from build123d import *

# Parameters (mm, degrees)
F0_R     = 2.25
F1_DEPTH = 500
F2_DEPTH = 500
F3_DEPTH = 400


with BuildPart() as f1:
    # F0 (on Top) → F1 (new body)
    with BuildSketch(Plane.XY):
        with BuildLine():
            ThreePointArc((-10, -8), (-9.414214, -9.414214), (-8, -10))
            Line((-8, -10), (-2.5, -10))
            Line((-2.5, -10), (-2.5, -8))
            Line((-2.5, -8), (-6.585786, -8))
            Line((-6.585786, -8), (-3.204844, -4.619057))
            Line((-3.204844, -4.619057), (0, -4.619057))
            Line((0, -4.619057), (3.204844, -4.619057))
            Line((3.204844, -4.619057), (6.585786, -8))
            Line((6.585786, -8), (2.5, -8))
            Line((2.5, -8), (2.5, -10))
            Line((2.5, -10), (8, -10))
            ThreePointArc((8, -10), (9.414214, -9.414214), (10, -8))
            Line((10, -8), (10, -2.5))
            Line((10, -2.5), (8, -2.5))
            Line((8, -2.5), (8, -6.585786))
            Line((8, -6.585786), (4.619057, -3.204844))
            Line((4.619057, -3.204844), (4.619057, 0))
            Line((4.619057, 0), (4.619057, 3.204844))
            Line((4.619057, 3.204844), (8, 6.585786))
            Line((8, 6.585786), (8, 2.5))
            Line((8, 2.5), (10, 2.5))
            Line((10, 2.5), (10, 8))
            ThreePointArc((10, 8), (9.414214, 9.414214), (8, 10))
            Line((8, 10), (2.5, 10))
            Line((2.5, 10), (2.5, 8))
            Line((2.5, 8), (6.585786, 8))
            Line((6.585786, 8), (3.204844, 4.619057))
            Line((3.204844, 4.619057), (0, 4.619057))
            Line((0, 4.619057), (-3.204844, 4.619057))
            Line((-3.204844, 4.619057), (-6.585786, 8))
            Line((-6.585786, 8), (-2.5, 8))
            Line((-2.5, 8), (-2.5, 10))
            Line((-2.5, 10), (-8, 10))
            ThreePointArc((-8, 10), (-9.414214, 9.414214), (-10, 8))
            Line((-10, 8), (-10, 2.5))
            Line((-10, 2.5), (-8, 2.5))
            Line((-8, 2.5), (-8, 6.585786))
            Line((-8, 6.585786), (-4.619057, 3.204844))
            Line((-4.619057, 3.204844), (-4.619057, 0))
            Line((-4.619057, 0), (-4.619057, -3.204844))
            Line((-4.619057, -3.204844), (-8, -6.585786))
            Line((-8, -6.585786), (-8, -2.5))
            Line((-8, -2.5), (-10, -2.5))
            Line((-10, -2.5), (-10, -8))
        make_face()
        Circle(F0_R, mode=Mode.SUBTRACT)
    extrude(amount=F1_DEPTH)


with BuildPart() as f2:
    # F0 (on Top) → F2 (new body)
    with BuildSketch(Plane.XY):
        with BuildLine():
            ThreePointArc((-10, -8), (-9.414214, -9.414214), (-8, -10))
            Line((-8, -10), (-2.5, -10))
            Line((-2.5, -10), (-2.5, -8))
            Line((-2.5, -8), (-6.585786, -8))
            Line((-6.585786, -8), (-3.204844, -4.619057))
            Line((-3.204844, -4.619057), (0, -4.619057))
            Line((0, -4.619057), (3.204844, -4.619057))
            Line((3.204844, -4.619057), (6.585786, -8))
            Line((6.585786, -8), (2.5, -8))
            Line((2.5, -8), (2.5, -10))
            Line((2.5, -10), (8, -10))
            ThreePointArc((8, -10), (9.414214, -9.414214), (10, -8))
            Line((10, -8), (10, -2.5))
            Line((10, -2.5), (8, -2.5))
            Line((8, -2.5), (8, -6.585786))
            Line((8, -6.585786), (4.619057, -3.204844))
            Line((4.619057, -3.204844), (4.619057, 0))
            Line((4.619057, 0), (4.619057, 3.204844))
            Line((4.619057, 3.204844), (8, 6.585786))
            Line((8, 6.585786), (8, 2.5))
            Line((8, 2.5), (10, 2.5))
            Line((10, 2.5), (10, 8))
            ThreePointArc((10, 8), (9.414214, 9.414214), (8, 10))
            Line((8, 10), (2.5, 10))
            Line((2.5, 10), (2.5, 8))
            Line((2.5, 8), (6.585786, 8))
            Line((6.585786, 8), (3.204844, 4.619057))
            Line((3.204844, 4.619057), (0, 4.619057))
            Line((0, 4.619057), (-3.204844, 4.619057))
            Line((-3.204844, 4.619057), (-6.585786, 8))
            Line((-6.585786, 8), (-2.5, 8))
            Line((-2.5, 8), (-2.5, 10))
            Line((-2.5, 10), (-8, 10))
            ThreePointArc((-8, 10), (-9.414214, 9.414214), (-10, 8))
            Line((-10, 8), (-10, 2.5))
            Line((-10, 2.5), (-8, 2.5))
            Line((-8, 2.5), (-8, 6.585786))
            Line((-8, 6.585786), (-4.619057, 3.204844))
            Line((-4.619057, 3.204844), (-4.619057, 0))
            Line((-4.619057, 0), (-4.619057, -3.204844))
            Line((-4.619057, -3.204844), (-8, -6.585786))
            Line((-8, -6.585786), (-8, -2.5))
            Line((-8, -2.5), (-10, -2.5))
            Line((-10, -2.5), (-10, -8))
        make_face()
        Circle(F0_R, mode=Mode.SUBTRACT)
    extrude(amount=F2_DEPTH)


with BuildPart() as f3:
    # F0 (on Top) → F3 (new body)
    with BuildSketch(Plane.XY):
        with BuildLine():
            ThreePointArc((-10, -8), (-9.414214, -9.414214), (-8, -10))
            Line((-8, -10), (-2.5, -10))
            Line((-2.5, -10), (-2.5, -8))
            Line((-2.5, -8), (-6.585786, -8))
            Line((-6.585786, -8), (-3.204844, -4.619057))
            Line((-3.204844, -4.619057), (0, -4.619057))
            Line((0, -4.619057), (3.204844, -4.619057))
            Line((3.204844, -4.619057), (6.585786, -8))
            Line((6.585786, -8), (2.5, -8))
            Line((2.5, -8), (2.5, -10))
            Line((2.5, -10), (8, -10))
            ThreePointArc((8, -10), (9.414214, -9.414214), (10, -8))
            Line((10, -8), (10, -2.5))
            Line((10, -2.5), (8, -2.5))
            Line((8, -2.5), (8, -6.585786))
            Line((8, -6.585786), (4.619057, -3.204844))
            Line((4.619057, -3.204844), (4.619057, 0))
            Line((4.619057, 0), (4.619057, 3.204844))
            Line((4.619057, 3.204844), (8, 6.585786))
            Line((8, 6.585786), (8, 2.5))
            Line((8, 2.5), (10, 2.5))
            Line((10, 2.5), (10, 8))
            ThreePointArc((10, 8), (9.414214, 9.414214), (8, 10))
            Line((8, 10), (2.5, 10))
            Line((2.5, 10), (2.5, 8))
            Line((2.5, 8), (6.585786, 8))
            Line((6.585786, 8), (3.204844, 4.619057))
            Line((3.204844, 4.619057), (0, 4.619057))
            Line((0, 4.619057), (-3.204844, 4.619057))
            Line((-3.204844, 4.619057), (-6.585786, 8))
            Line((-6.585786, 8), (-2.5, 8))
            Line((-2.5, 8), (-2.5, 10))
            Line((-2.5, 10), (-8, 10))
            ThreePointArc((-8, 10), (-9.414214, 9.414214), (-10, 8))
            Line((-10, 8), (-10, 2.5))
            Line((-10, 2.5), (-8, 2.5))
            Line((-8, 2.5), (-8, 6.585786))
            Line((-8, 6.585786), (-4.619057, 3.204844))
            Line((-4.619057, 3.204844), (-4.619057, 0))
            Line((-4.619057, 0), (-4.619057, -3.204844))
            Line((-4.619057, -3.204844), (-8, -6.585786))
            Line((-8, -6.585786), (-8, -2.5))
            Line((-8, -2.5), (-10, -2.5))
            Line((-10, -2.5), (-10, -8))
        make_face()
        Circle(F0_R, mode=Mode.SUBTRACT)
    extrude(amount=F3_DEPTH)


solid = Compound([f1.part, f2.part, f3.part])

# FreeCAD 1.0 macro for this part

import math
import FreeCAD as App
import Part
import Sketcher
from FreeCAD import Vector

doc = App.newDocument("Part")
params = doc.addObject("Spreadsheet::Sheet", "Params")
for row, (alias, value) in enumerate([
    ("sketch1_radius", "1.999999 mm"),
    ("sketch1_diameter", "4.5 mm"),
    ("sketch1_width", "5.5 mm"),
    ("pad1_length", "500 mm"),
    ("sketch2_radius", "1.999999 mm"),
    ("sketch2_diameter", "4.5 mm"),
    ("sketch2_width", "5.5 mm"),
    ("pad2_length", "500 mm"),
    ("sketch3_radius", "1.999999 mm"),
    ("sketch3_diameter", "4.5 mm"),
    ("sketch3_width", "5.5 mm"),
    ("pad3_length", "400 mm"),
], start=1):
    params.set(f"A{row}", alias)
    params.set(f"B{row}", "=" + value)
    params.setAlias(f"B{row}", alias)

body = doc.addObject("PartDesign::Body", "Body")

sketch1 = body.newObject("Sketcher::SketchObject", "Sketch")
sketch1.AttachmentSupport = (doc.getObject("XY_Plane"), [""])
sketch1.MapMode = "FlatFace"
sketch1.addGeometry([
    Part.ArcOfCircle(Part.Circle(Vector(-8, -8, 0), Vector(0, 0, 1), 2), math.radians(180), math.radians(270)),
    Part.LineSegment(Vector(-8, -10, 0), Vector(-2.5, -10, 0)),
    Part.LineSegment(Vector(-2.5, -10, 0), Vector(-2.5, -8, 0)),
    Part.LineSegment(Vector(-2.5, -8, 0), Vector(-6.6, -8, 0)),
    Part.LineSegment(Vector(-6.6, -8, 0), Vector(-3.2, -4.6, 0)),
    Part.LineSegment(Vector(-3.2, -4.6, 0), Vector(3.2, -4.6, 0)),
    Part.LineSegment(Vector(3.2, -4.6, 0), Vector(6.6, -8, 0)),
    Part.LineSegment(Vector(6.6, -8, 0), Vector(2.5, -8, 0)),
    Part.LineSegment(Vector(2.5, -8, 0), Vector(2.5, -10, 0)),
    Part.LineSegment(Vector(2.5, -10, 0), Vector(8, -10, 0)),
    Part.ArcOfCircle(Part.Circle(Vector(8, -8, 0), Vector(0, 0, 1), 2), math.radians(-90), math.radians(0)),
    Part.LineSegment(Vector(10, -8, 0), Vector(10, -2.5, 0)),
    Part.LineSegment(Vector(10, -2.5, 0), Vector(8, -2.5, 0)),
    Part.LineSegment(Vector(8, -2.5, 0), Vector(8, -6.6, 0)),
    Part.LineSegment(Vector(8, -6.6, 0), Vector(4.6, -3.2, 0)),
    Part.LineSegment(Vector(4.6, -3.2, 0), Vector(4.6, 3.2, 0)),
    Part.LineSegment(Vector(4.6, 3.2, 0), Vector(8, 6.6, 0)),
    Part.LineSegment(Vector(8, 6.6, 0), Vector(8, 2.5, 0)),
    Part.LineSegment(Vector(8, 2.5, 0), Vector(10, 2.5, 0)),
    Part.LineSegment(Vector(10, 2.5, 0), Vector(10, 8, 0)),
    Part.ArcOfCircle(Part.Circle(Vector(8, 8, 0), Vector(0, 0, 1), 2), math.radians(0), math.radians(90)),
    Part.LineSegment(Vector(8, 10, 0), Vector(2.5, 10, 0)),
    Part.LineSegment(Vector(2.5, 10, 0), Vector(2.5, 8, 0)),
    Part.LineSegment(Vector(2.5, 8, 0), Vector(6.6, 8, 0)),
    Part.LineSegment(Vector(6.6, 8, 0), Vector(3.2, 4.6, 0)),
    Part.LineSegment(Vector(3.2, 4.6, 0), Vector(-3.2, 4.6, 0)),
    Part.LineSegment(Vector(-3.2, 4.6, 0), Vector(-6.6, 8, 0)),
    Part.LineSegment(Vector(-6.6, 8, 0), Vector(-2.5, 8, 0)),
    Part.LineSegment(Vector(-2.5, 8, 0), Vector(-2.5, 10, 0)),
    Part.LineSegment(Vector(-2.5, 10, 0), Vector(-8, 10, 0)),
    Part.ArcOfCircle(Part.Circle(Vector(-8, 8, 0), Vector(0, 0, 1), 2), math.radians(90), math.radians(180)),
    Part.LineSegment(Vector(-10, 8, 0), Vector(-10, 2.5, 0)),
    Part.LineSegment(Vector(-10, 2.5, 0), Vector(-8, 2.5, 0)),
    Part.LineSegment(Vector(-8, 2.5, 0), Vector(-8, 6.6, 0)),
    Part.LineSegment(Vector(-8, 6.6, 0), Vector(-4.6, 3.2, 0)),
    Part.LineSegment(Vector(-4.6, 3.2, 0), Vector(-4.6, -3.2, 0)),
    Part.LineSegment(Vector(-4.6, -3.2, 0), Vector(-8, -6.6, 0)),
    Part.LineSegment(Vector(-8, -6.6, 0), Vector(-8, -2.5, 0)),
    Part.LineSegment(Vector(-8, -2.5, 0), Vector(-10, -2.5, 0)),
    Part.LineSegment(Vector(-10, -2.5, 0), Vector(-10, -8, 0)),
    Part.Circle(Vector(0, 0, 0), Vector(0, 0, 1), 2.2),
], False)
sketch1.addConstraint([
    Sketcher.Constraint("Tangent", 0, 2, 1, 1),
    Sketcher.Constraint("Coincident", 1, 2, 2, 1),
    Sketcher.Constraint("Coincident", 2, 2, 3, 1),
    Sketcher.Constraint("Coincident", 3, 2, 4, 1),
    Sketcher.Constraint("Coincident", 4, 2, 5, 1),
    Sketcher.Constraint("Coincident", 5, 2, 6, 1),
    Sketcher.Constraint("Coincident", 6, 2, 7, 1),
    Sketcher.Constraint("Coincident", 7, 2, 8, 1),
    Sketcher.Constraint("Coincident", 8, 2, 9, 1),
    Sketcher.Constraint("Tangent", 9, 2, 10, 1),
    Sketcher.Constraint("Tangent", 10, 2, 11, 1),
    Sketcher.Constraint("Coincident", 11, 2, 12, 1),
    Sketcher.Constraint("Coincident", 12, 2, 13, 1),
    Sketcher.Constraint("Coincident", 13, 2, 14, 1),
    Sketcher.Constraint("Coincident", 14, 2, 15, 1),
    Sketcher.Constraint("Coincident", 15, 2, 16, 1),
    Sketcher.Constraint("Coincident", 16, 2, 17, 1),
    Sketcher.Constraint("Coincident", 17, 2, 18, 1),
    Sketcher.Constraint("Coincident", 18, 2, 19, 1),
    Sketcher.Constraint("Tangent", 19, 2, 20, 1),
    Sketcher.Constraint("Tangent", 20, 2, 21, 1),
    Sketcher.Constraint("Coincident", 21, 2, 22, 1),
    Sketcher.Constraint("Coincident", 22, 2, 23, 1),
    Sketcher.Constraint("Coincident", 23, 2, 24, 1),
    Sketcher.Constraint("Coincident", 24, 2, 25, 1),
    Sketcher.Constraint("Coincident", 25, 2, 26, 1),
    Sketcher.Constraint("Coincident", 26, 2, 27, 1),
    Sketcher.Constraint("Coincident", 27, 2, 28, 1),
    Sketcher.Constraint("Coincident", 28, 2, 29, 1),
    Sketcher.Constraint("Tangent", 29, 2, 30, 1),
    Sketcher.Constraint("Tangent", 30, 2, 31, 1),
    Sketcher.Constraint("Coincident", 31, 2, 32, 1),
    Sketcher.Constraint("Coincident", 32, 2, 33, 1),
    Sketcher.Constraint("Coincident", 33, 2, 34, 1),
    Sketcher.Constraint("Coincident", 34, 2, 35, 1),
    Sketcher.Constraint("Coincident", 35, 2, 36, 1),
    Sketcher.Constraint("Coincident", 36, 2, 37, 1),
    Sketcher.Constraint("Coincident", 37, 2, 38, 1),
    Sketcher.Constraint("Coincident", 38, 2, 39, 1),
    Sketcher.Constraint("Tangent", 39, 2, 0, 1),
    Sketcher.Constraint("Horizontal", 1),
    Sketcher.Constraint("Vertical", 2),
    Sketcher.Constraint("Horizontal", 3),
    Sketcher.Constraint("Horizontal", 5),
    Sketcher.Constraint("Horizontal", 7),
    Sketcher.Constraint("Vertical", 8),
    Sketcher.Constraint("Horizontal", 9),
    Sketcher.Constraint("Vertical", 11),
    Sketcher.Constraint("Horizontal", 12),
    Sketcher.Constraint("Vertical", 13),
    Sketcher.Constraint("Vertical", 15),
    Sketcher.Constraint("Vertical", 17),
    Sketcher.Constraint("Horizontal", 18),
    Sketcher.Constraint("Vertical", 19),
    Sketcher.Constraint("Horizontal", 21),
    Sketcher.Constraint("Vertical", 22),
    Sketcher.Constraint("Horizontal", 23),
    Sketcher.Constraint("Horizontal", 25),
    Sketcher.Constraint("Horizontal", 27),
    Sketcher.Constraint("Vertical", 28),
    Sketcher.Constraint("Horizontal", 29),
    Sketcher.Constraint("Vertical", 31),
    Sketcher.Constraint("Horizontal", 32),
    Sketcher.Constraint("Vertical", 33),
    Sketcher.Constraint("Vertical", 35),
    Sketcher.Constraint("Vertical", 37),
    Sketcher.Constraint("Horizontal", 38),
    Sketcher.Constraint("Vertical", 39),
    Sketcher.Constraint("Coincident", 40, 3, -1, 1),
    Sketcher.Constraint("Equal", 0, 10),
    Sketcher.Constraint("Equal", 10, 20),
    Sketcher.Constraint("Equal", 20, 30),
    Sketcher.Constraint("Symmetric", 0, 3, 20, 3, -1, 1),
    Sketcher.Constraint("Symmetric", 10, 3, 30, 3, -1, 1),
    Sketcher.Constraint("Symmetric", 2, 2, 22, 2, -1, 1),
    Sketcher.Constraint("Symmetric", 4, 2, 24, 2, -1, 1),
    Sketcher.Constraint("Symmetric", 6, 2, 26, 2, -1, 1),
    Sketcher.Constraint("Symmetric", 12, 2, 32, 2, -1, 1),
    Sketcher.Constraint("Symmetric", 14, 2, 34, 2, -1, 1),
    Sketcher.Constraint("Symmetric", 16, 2, 36, 2, -1, 1),
    Sketcher.Constraint("Symmetric", 0, 3, 10, 3, -2),
    Sketcher.Constraint("Symmetric", 3, 2, 6, 2, -2),
    Sketcher.Constraint("Symmetric", 17, 2, 32, 2, -2),
    Sketcher.Constraint("Perpendicular", 4, 6),
    Sketcher.Constraint("Parallel", 6, 14),
    Sketcher.Constraint("Perpendicular", 14, 16),
    Sketcher.Constraint("Parallel", 16, 24),
    Sketcher.Constraint("Perpendicular", 24, 26),
    Sketcher.Constraint("Parallel", 26, 34),
    Sketcher.Constraint("Perpendicular", 34, 36),
    Sketcher.Constraint("Horizontal", 10, 3, 2, 2),
    Sketcher.Constraint("Horizontal", 16, 2, 33, 2),
    Sketcher.Constraint("Horizontal", 15, 2, 34, 2),
    Sketcher.Constraint("Horizontal", 12, 2, 37, 2),
    Sketcher.Constraint("Vertical", 9, 2, 12, 2),
    Sketcher.Constraint("Vertical", 8, 2, 21, 2),
    Sketcher.Constraint("Vertical", 2, 2, 27, 2),
    Sketcher.Constraint("Equal", 29, 11),
    Sketcher.Constraint("Equal", 27, 13),
    Sketcher.Constraint("Equal", 25, 15),
    Sketcher.Constraint("Equal", 6, 14),
    Sketcher.Constraint("Radius", 0, 1.999999),
    Sketcher.Constraint("Diameter", 40, 4.5),
    Sketcher.Constraint("DistanceX", 1, 1, 1, 2, 5.5),
    Sketcher.Constraint("DistanceX", 0, 3, -1, 1, 8.000001),
    Sketcher.Constraint("DistanceX", 3, 2, 3, 1, 4.085786),
    Sketcher.Constraint("DistanceX", 5, 1, 5, 2, 6.409688),
])
sketch1.setExpression("Constraints[101]", "Params.sketch1_radius")
sketch1.setExpression("Constraints[102]", "Params.sketch1_diameter")
sketch1.setExpression("Constraints[103]", "Params.sketch1_width")
pad1 = body.newObject("PartDesign::Pad", "Pad")
pad1.Profile = sketch1
pad1.setExpression("Length", "Params.pad1_length")
body2 = doc.addObject("PartDesign::Body", "Body001")

sketch2 = body2.newObject("Sketcher::SketchObject", "Sketch001")
sketch2.AttachmentSupport = (doc.getObject("XY_Plane001"), [""])
sketch2.MapMode = "FlatFace"
sketch2.addGeometry([
    Part.ArcOfCircle(Part.Circle(Vector(-8, -8, 0), Vector(0, 0, 1), 2), math.radians(180), math.radians(270)),
    Part.LineSegment(Vector(-8, -10, 0), Vector(-2.5, -10, 0)),
    Part.LineSegment(Vector(-2.5, -10, 0), Vector(-2.5, -8, 0)),
    Part.LineSegment(Vector(-2.5, -8, 0), Vector(-6.6, -8, 0)),
    Part.LineSegment(Vector(-6.6, -8, 0), Vector(-3.2, -4.6, 0)),
    Part.LineSegment(Vector(-3.2, -4.6, 0), Vector(3.2, -4.6, 0)),
    Part.LineSegment(Vector(3.2, -4.6, 0), Vector(6.6, -8, 0)),
    Part.LineSegment(Vector(6.6, -8, 0), Vector(2.5, -8, 0)),
    Part.LineSegment(Vector(2.5, -8, 0), Vector(2.5, -10, 0)),
    Part.LineSegment(Vector(2.5, -10, 0), Vector(8, -10, 0)),
    Part.ArcOfCircle(Part.Circle(Vector(8, -8, 0), Vector(0, 0, 1), 2), math.radians(-90), math.radians(0)),
    Part.LineSegment(Vector(10, -8, 0), Vector(10, -2.5, 0)),
    Part.LineSegment(Vector(10, -2.5, 0), Vector(8, -2.5, 0)),
    Part.LineSegment(Vector(8, -2.5, 0), Vector(8, -6.6, 0)),
    Part.LineSegment(Vector(8, -6.6, 0), Vector(4.6, -3.2, 0)),
    Part.LineSegment(Vector(4.6, -3.2, 0), Vector(4.6, 3.2, 0)),
    Part.LineSegment(Vector(4.6, 3.2, 0), Vector(8, 6.6, 0)),
    Part.LineSegment(Vector(8, 6.6, 0), Vector(8, 2.5, 0)),
    Part.LineSegment(Vector(8, 2.5, 0), Vector(10, 2.5, 0)),
    Part.LineSegment(Vector(10, 2.5, 0), Vector(10, 8, 0)),
    Part.ArcOfCircle(Part.Circle(Vector(8, 8, 0), Vector(0, 0, 1), 2), math.radians(0), math.radians(90)),
    Part.LineSegment(Vector(8, 10, 0), Vector(2.5, 10, 0)),
    Part.LineSegment(Vector(2.5, 10, 0), Vector(2.5, 8, 0)),
    Part.LineSegment(Vector(2.5, 8, 0), Vector(6.6, 8, 0)),
    Part.LineSegment(Vector(6.6, 8, 0), Vector(3.2, 4.6, 0)),
    Part.LineSegment(Vector(3.2, 4.6, 0), Vector(-3.2, 4.6, 0)),
    Part.LineSegment(Vector(-3.2, 4.6, 0), Vector(-6.6, 8, 0)),
    Part.LineSegment(Vector(-6.6, 8, 0), Vector(-2.5, 8, 0)),
    Part.LineSegment(Vector(-2.5, 8, 0), Vector(-2.5, 10, 0)),
    Part.LineSegment(Vector(-2.5, 10, 0), Vector(-8, 10, 0)),
    Part.ArcOfCircle(Part.Circle(Vector(-8, 8, 0), Vector(0, 0, 1), 2), math.radians(90), math.radians(180)),
    Part.LineSegment(Vector(-10, 8, 0), Vector(-10, 2.5, 0)),
    Part.LineSegment(Vector(-10, 2.5, 0), Vector(-8, 2.5, 0)),
    Part.LineSegment(Vector(-8, 2.5, 0), Vector(-8, 6.6, 0)),
    Part.LineSegment(Vector(-8, 6.6, 0), Vector(-4.6, 3.2, 0)),
    Part.LineSegment(Vector(-4.6, 3.2, 0), Vector(-4.6, -3.2, 0)),
    Part.LineSegment(Vector(-4.6, -3.2, 0), Vector(-8, -6.6, 0)),
    Part.LineSegment(Vector(-8, -6.6, 0), Vector(-8, -2.5, 0)),
    Part.LineSegment(Vector(-8, -2.5, 0), Vector(-10, -2.5, 0)),
    Part.LineSegment(Vector(-10, -2.5, 0), Vector(-10, -8, 0)),
    Part.Circle(Vector(0, 0, 0), Vector(0, 0, 1), 2.2),
], False)
sketch2.addConstraint([
    Sketcher.Constraint("Tangent", 0, 2, 1, 1),
    Sketcher.Constraint("Coincident", 1, 2, 2, 1),
    Sketcher.Constraint("Coincident", 2, 2, 3, 1),
    Sketcher.Constraint("Coincident", 3, 2, 4, 1),
    Sketcher.Constraint("Coincident", 4, 2, 5, 1),
    Sketcher.Constraint("Coincident", 5, 2, 6, 1),
    Sketcher.Constraint("Coincident", 6, 2, 7, 1),
    Sketcher.Constraint("Coincident", 7, 2, 8, 1),
    Sketcher.Constraint("Coincident", 8, 2, 9, 1),
    Sketcher.Constraint("Tangent", 9, 2, 10, 1),
    Sketcher.Constraint("Tangent", 10, 2, 11, 1),
    Sketcher.Constraint("Coincident", 11, 2, 12, 1),
    Sketcher.Constraint("Coincident", 12, 2, 13, 1),
    Sketcher.Constraint("Coincident", 13, 2, 14, 1),
    Sketcher.Constraint("Coincident", 14, 2, 15, 1),
    Sketcher.Constraint("Coincident", 15, 2, 16, 1),
    Sketcher.Constraint("Coincident", 16, 2, 17, 1),
    Sketcher.Constraint("Coincident", 17, 2, 18, 1),
    Sketcher.Constraint("Coincident", 18, 2, 19, 1),
    Sketcher.Constraint("Tangent", 19, 2, 20, 1),
    Sketcher.Constraint("Tangent", 20, 2, 21, 1),
    Sketcher.Constraint("Coincident", 21, 2, 22, 1),
    Sketcher.Constraint("Coincident", 22, 2, 23, 1),
    Sketcher.Constraint("Coincident", 23, 2, 24, 1),
    Sketcher.Constraint("Coincident", 24, 2, 25, 1),
    Sketcher.Constraint("Coincident", 25, 2, 26, 1),
    Sketcher.Constraint("Coincident", 26, 2, 27, 1),
    Sketcher.Constraint("Coincident", 27, 2, 28, 1),
    Sketcher.Constraint("Coincident", 28, 2, 29, 1),
    Sketcher.Constraint("Tangent", 29, 2, 30, 1),
    Sketcher.Constraint("Tangent", 30, 2, 31, 1),
    Sketcher.Constraint("Coincident", 31, 2, 32, 1),
    Sketcher.Constraint("Coincident", 32, 2, 33, 1),
    Sketcher.Constraint("Coincident", 33, 2, 34, 1),
    Sketcher.Constraint("Coincident", 34, 2, 35, 1),
    Sketcher.Constraint("Coincident", 35, 2, 36, 1),
    Sketcher.Constraint("Coincident", 36, 2, 37, 1),
    Sketcher.Constraint("Coincident", 37, 2, 38, 1),
    Sketcher.Constraint("Coincident", 38, 2, 39, 1),
    Sketcher.Constraint("Tangent", 39, 2, 0, 1),
    Sketcher.Constraint("Horizontal", 1),
    Sketcher.Constraint("Vertical", 2),
    Sketcher.Constraint("Horizontal", 3),
    Sketcher.Constraint("Horizontal", 5),
    Sketcher.Constraint("Horizontal", 7),
    Sketcher.Constraint("Vertical", 8),
    Sketcher.Constraint("Horizontal", 9),
    Sketcher.Constraint("Vertical", 11),
    Sketcher.Constraint("Horizontal", 12),
    Sketcher.Constraint("Vertical", 13),
    Sketcher.Constraint("Vertical", 15),
    Sketcher.Constraint("Vertical", 17),
    Sketcher.Constraint("Horizontal", 18),
    Sketcher.Constraint("Vertical", 19),
    Sketcher.Constraint("Horizontal", 21),
    Sketcher.Constraint("Vertical", 22),
    Sketcher.Constraint("Horizontal", 23),
    Sketcher.Constraint("Horizontal", 25),
    Sketcher.Constraint("Horizontal", 27),
    Sketcher.Constraint("Vertical", 28),
    Sketcher.Constraint("Horizontal", 29),
    Sketcher.Constraint("Vertical", 31),
    Sketcher.Constraint("Horizontal", 32),
    Sketcher.Constraint("Vertical", 33),
    Sketcher.Constraint("Vertical", 35),
    Sketcher.Constraint("Vertical", 37),
    Sketcher.Constraint("Horizontal", 38),
    Sketcher.Constraint("Vertical", 39),
    Sketcher.Constraint("Coincident", 40, 3, -1, 1),
    Sketcher.Constraint("Equal", 0, 10),
    Sketcher.Constraint("Equal", 10, 20),
    Sketcher.Constraint("Equal", 20, 30),
    Sketcher.Constraint("Symmetric", 0, 3, 20, 3, -1, 1),
    Sketcher.Constraint("Symmetric", 10, 3, 30, 3, -1, 1),
    Sketcher.Constraint("Symmetric", 2, 2, 22, 2, -1, 1),
    Sketcher.Constraint("Symmetric", 4, 2, 24, 2, -1, 1),
    Sketcher.Constraint("Symmetric", 6, 2, 26, 2, -1, 1),
    Sketcher.Constraint("Symmetric", 12, 2, 32, 2, -1, 1),
    Sketcher.Constraint("Symmetric", 14, 2, 34, 2, -1, 1),
    Sketcher.Constraint("Symmetric", 16, 2, 36, 2, -1, 1),
    Sketcher.Constraint("Symmetric", 0, 3, 10, 3, -2),
    Sketcher.Constraint("Symmetric", 3, 2, 6, 2, -2),
    Sketcher.Constraint("Symmetric", 17, 2, 32, 2, -2),
    Sketcher.Constraint("Perpendicular", 4, 6),
    Sketcher.Constraint("Parallel", 6, 14),
    Sketcher.Constraint("Perpendicular", 14, 16),
    Sketcher.Constraint("Parallel", 16, 24),
    Sketcher.Constraint("Perpendicular", 24, 26),
    Sketcher.Constraint("Parallel", 26, 34),
    Sketcher.Constraint("Perpendicular", 34, 36),
    Sketcher.Constraint("Horizontal", 10, 3, 2, 2),
    Sketcher.Constraint("Horizontal", 16, 2, 33, 2),
    Sketcher.Constraint("Horizontal", 15, 2, 34, 2),
    Sketcher.Constraint("Horizontal", 12, 2, 37, 2),
    Sketcher.Constraint("Vertical", 9, 2, 12, 2),
    Sketcher.Constraint("Vertical", 8, 2, 21, 2),
    Sketcher.Constraint("Vertical", 2, 2, 27, 2),
    Sketcher.Constraint("Equal", 29, 11),
    Sketcher.Constraint("Equal", 27, 13),
    Sketcher.Constraint("Equal", 25, 15),
    Sketcher.Constraint("Equal", 6, 14),
    Sketcher.Constraint("Radius", 0, 1.999999),
    Sketcher.Constraint("Diameter", 40, 4.5),
    Sketcher.Constraint("DistanceX", 1, 1, 1, 2, 5.5),
    Sketcher.Constraint("DistanceX", 0, 3, -1, 1, 8.000001),
    Sketcher.Constraint("DistanceX", 3, 2, 3, 1, 4.085786),
    Sketcher.Constraint("DistanceX", 5, 1, 5, 2, 6.409688),
])
sketch2.setExpression("Constraints[101]", "Params.sketch2_radius")
sketch2.setExpression("Constraints[102]", "Params.sketch2_diameter")
sketch2.setExpression("Constraints[103]", "Params.sketch2_width")
pad2 = body2.newObject("PartDesign::Pad", "Pad001")
pad2.Profile = sketch2
pad2.setExpression("Length", "Params.pad2_length")
body3 = doc.addObject("PartDesign::Body", "Body002")

sketch3 = body3.newObject("Sketcher::SketchObject", "Sketch002")
sketch3.AttachmentSupport = (doc.getObject("XY_Plane002"), [""])
sketch3.MapMode = "FlatFace"
sketch3.addGeometry([
    Part.ArcOfCircle(Part.Circle(Vector(-8, -8, 0), Vector(0, 0, 1), 2), math.radians(180), math.radians(270)),
    Part.LineSegment(Vector(-8, -10, 0), Vector(-2.5, -10, 0)),
    Part.LineSegment(Vector(-2.5, -10, 0), Vector(-2.5, -8, 0)),
    Part.LineSegment(Vector(-2.5, -8, 0), Vector(-6.6, -8, 0)),
    Part.LineSegment(Vector(-6.6, -8, 0), Vector(-3.2, -4.6, 0)),
    Part.LineSegment(Vector(-3.2, -4.6, 0), Vector(3.2, -4.6, 0)),
    Part.LineSegment(Vector(3.2, -4.6, 0), Vector(6.6, -8, 0)),
    Part.LineSegment(Vector(6.6, -8, 0), Vector(2.5, -8, 0)),
    Part.LineSegment(Vector(2.5, -8, 0), Vector(2.5, -10, 0)),
    Part.LineSegment(Vector(2.5, -10, 0), Vector(8, -10, 0)),
    Part.ArcOfCircle(Part.Circle(Vector(8, -8, 0), Vector(0, 0, 1), 2), math.radians(-90), math.radians(0)),
    Part.LineSegment(Vector(10, -8, 0), Vector(10, -2.5, 0)),
    Part.LineSegment(Vector(10, -2.5, 0), Vector(8, -2.5, 0)),
    Part.LineSegment(Vector(8, -2.5, 0), Vector(8, -6.6, 0)),
    Part.LineSegment(Vector(8, -6.6, 0), Vector(4.6, -3.2, 0)),
    Part.LineSegment(Vector(4.6, -3.2, 0), Vector(4.6, 3.2, 0)),
    Part.LineSegment(Vector(4.6, 3.2, 0), Vector(8, 6.6, 0)),
    Part.LineSegment(Vector(8, 6.6, 0), Vector(8, 2.5, 0)),
    Part.LineSegment(Vector(8, 2.5, 0), Vector(10, 2.5, 0)),
    Part.LineSegment(Vector(10, 2.5, 0), Vector(10, 8, 0)),
    Part.ArcOfCircle(Part.Circle(Vector(8, 8, 0), Vector(0, 0, 1), 2), math.radians(0), math.radians(90)),
    Part.LineSegment(Vector(8, 10, 0), Vector(2.5, 10, 0)),
    Part.LineSegment(Vector(2.5, 10, 0), Vector(2.5, 8, 0)),
    Part.LineSegment(Vector(2.5, 8, 0), Vector(6.6, 8, 0)),
    Part.LineSegment(Vector(6.6, 8, 0), Vector(3.2, 4.6, 0)),
    Part.LineSegment(Vector(3.2, 4.6, 0), Vector(-3.2, 4.6, 0)),
    Part.LineSegment(Vector(-3.2, 4.6, 0), Vector(-6.6, 8, 0)),
    Part.LineSegment(Vector(-6.6, 8, 0), Vector(-2.5, 8, 0)),
    Part.LineSegment(Vector(-2.5, 8, 0), Vector(-2.5, 10, 0)),
    Part.LineSegment(Vector(-2.5, 10, 0), Vector(-8, 10, 0)),
    Part.ArcOfCircle(Part.Circle(Vector(-8, 8, 0), Vector(0, 0, 1), 2), math.radians(90), math.radians(180)),
    Part.LineSegment(Vector(-10, 8, 0), Vector(-10, 2.5, 0)),
    Part.LineSegment(Vector(-10, 2.5, 0), Vector(-8, 2.5, 0)),
    Part.LineSegment(Vector(-8, 2.5, 0), Vector(-8, 6.6, 0)),
    Part.LineSegment(Vector(-8, 6.6, 0), Vector(-4.6, 3.2, 0)),
    Part.LineSegment(Vector(-4.6, 3.2, 0), Vector(-4.6, -3.2, 0)),
    Part.LineSegment(Vector(-4.6, -3.2, 0), Vector(-8, -6.6, 0)),
    Part.LineSegment(Vector(-8, -6.6, 0), Vector(-8, -2.5, 0)),
    Part.LineSegment(Vector(-8, -2.5, 0), Vector(-10, -2.5, 0)),
    Part.LineSegment(Vector(-10, -2.5, 0), Vector(-10, -8, 0)),
    Part.Circle(Vector(0, 0, 0), Vector(0, 0, 1), 2.2),
], False)
sketch3.addConstraint([
    Sketcher.Constraint("Tangent", 0, 2, 1, 1),
    Sketcher.Constraint("Coincident", 1, 2, 2, 1),
    Sketcher.Constraint("Coincident", 2, 2, 3, 1),
    Sketcher.Constraint("Coincident", 3, 2, 4, 1),
    Sketcher.Constraint("Coincident", 4, 2, 5, 1),
    Sketcher.Constraint("Coincident", 5, 2, 6, 1),
    Sketcher.Constraint("Coincident", 6, 2, 7, 1),
    Sketcher.Constraint("Coincident", 7, 2, 8, 1),
    Sketcher.Constraint("Coincident", 8, 2, 9, 1),
    Sketcher.Constraint("Tangent", 9, 2, 10, 1),
    Sketcher.Constraint("Tangent", 10, 2, 11, 1),
    Sketcher.Constraint("Coincident", 11, 2, 12, 1),
    Sketcher.Constraint("Coincident", 12, 2, 13, 1),
    Sketcher.Constraint("Coincident", 13, 2, 14, 1),
    Sketcher.Constraint("Coincident", 14, 2, 15, 1),
    Sketcher.Constraint("Coincident", 15, 2, 16, 1),
    Sketcher.Constraint("Coincident", 16, 2, 17, 1),
    Sketcher.Constraint("Coincident", 17, 2, 18, 1),
    Sketcher.Constraint("Coincident", 18, 2, 19, 1),
    Sketcher.Constraint("Tangent", 19, 2, 20, 1),
    Sketcher.Constraint("Tangent", 20, 2, 21, 1),
    Sketcher.Constraint("Coincident", 21, 2, 22, 1),
    Sketcher.Constraint("Coincident", 22, 2, 23, 1),
    Sketcher.Constraint("Coincident", 23, 2, 24, 1),
    Sketcher.Constraint("Coincident", 24, 2, 25, 1),
    Sketcher.Constraint("Coincident", 25, 2, 26, 1),
    Sketcher.Constraint("Coincident", 26, 2, 27, 1),
    Sketcher.Constraint("Coincident", 27, 2, 28, 1),
    Sketcher.Constraint("Coincident", 28, 2, 29, 1),
    Sketcher.Constraint("Tangent", 29, 2, 30, 1),
    Sketcher.Constraint("Tangent", 30, 2, 31, 1),
    Sketcher.Constraint("Coincident", 31, 2, 32, 1),
    Sketcher.Constraint("Coincident", 32, 2, 33, 1),
    Sketcher.Constraint("Coincident", 33, 2, 34, 1),
    Sketcher.Constraint("Coincident", 34, 2, 35, 1),
    Sketcher.Constraint("Coincident", 35, 2, 36, 1),
    Sketcher.Constraint("Coincident", 36, 2, 37, 1),
    Sketcher.Constraint("Coincident", 37, 2, 38, 1),
    Sketcher.Constraint("Coincident", 38, 2, 39, 1),
    Sketcher.Constraint("Tangent", 39, 2, 0, 1),
    Sketcher.Constraint("Horizontal", 1),
    Sketcher.Constraint("Vertical", 2),
    Sketcher.Constraint("Horizontal", 3),
    Sketcher.Constraint("Horizontal", 5),
    Sketcher.Constraint("Horizontal", 7),
    Sketcher.Constraint("Vertical", 8),
    Sketcher.Constraint("Horizontal", 9),
    Sketcher.Constraint("Vertical", 11),
    Sketcher.Constraint("Horizontal", 12),
    Sketcher.Constraint("Vertical", 13),
    Sketcher.Constraint("Vertical", 15),
    Sketcher.Constraint("Vertical", 17),
    Sketcher.Constraint("Horizontal", 18),
    Sketcher.Constraint("Vertical", 19),
    Sketcher.Constraint("Horizontal", 21),
    Sketcher.Constraint("Vertical", 22),
    Sketcher.Constraint("Horizontal", 23),
    Sketcher.Constraint("Horizontal", 25),
    Sketcher.Constraint("Horizontal", 27),
    Sketcher.Constraint("Vertical", 28),
    Sketcher.Constraint("Horizontal", 29),
    Sketcher.Constraint("Vertical", 31),
    Sketcher.Constraint("Horizontal", 32),
    Sketcher.Constraint("Vertical", 33),
    Sketcher.Constraint("Vertical", 35),
    Sketcher.Constraint("Vertical", 37),
    Sketcher.Constraint("Horizontal", 38),
    Sketcher.Constraint("Vertical", 39),
    Sketcher.Constraint("Coincident", 40, 3, -1, 1),
    Sketcher.Constraint("Equal", 0, 10),
    Sketcher.Constraint("Equal", 10, 20),
    Sketcher.Constraint("Equal", 20, 30),
    Sketcher.Constraint("Symmetric", 0, 3, 20, 3, -1, 1),
    Sketcher.Constraint("Symmetric", 10, 3, 30, 3, -1, 1),
    Sketcher.Constraint("Symmetric", 2, 2, 22, 2, -1, 1),
    Sketcher.Constraint("Symmetric", 4, 2, 24, 2, -1, 1),
    Sketcher.Constraint("Symmetric", 6, 2, 26, 2, -1, 1),
    Sketcher.Constraint("Symmetric", 12, 2, 32, 2, -1, 1),
    Sketcher.Constraint("Symmetric", 14, 2, 34, 2, -1, 1),
    Sketcher.Constraint("Symmetric", 16, 2, 36, 2, -1, 1),
    Sketcher.Constraint("Symmetric", 0, 3, 10, 3, -2),
    Sketcher.Constraint("Symmetric", 3, 2, 6, 2, -2),
    Sketcher.Constraint("Symmetric", 17, 2, 32, 2, -2),
    Sketcher.Constraint("Perpendicular", 4, 6),
    Sketcher.Constraint("Parallel", 6, 14),
    Sketcher.Constraint("Perpendicular", 14, 16),
    Sketcher.Constraint("Parallel", 16, 24),
    Sketcher.Constraint("Perpendicular", 24, 26),
    Sketcher.Constraint("Parallel", 26, 34),
    Sketcher.Constraint("Perpendicular", 34, 36),
    Sketcher.Constraint("Horizontal", 10, 3, 2, 2),
    Sketcher.Constraint("Horizontal", 16, 2, 33, 2),
    Sketcher.Constraint("Horizontal", 15, 2, 34, 2),
    Sketcher.Constraint("Horizontal", 12, 2, 37, 2),
    Sketcher.Constraint("Vertical", 9, 2, 12, 2),
    Sketcher.Constraint("Vertical", 8, 2, 21, 2),
    Sketcher.Constraint("Vertical", 2, 2, 27, 2),
    Sketcher.Constraint("Equal", 29, 11),
    Sketcher.Constraint("Equal", 27, 13),
    Sketcher.Constraint("Equal", 25, 15),
    Sketcher.Constraint("Equal", 6, 14),
    Sketcher.Constraint("Radius", 0, 1.999999),
    Sketcher.Constraint("Diameter", 40, 4.5),
    Sketcher.Constraint("DistanceX", 1, 1, 1, 2, 5.5),
    Sketcher.Constraint("DistanceX", 0, 3, -1, 1, 8.000001),
    Sketcher.Constraint("DistanceX", 3, 2, 3, 1, 4.085786),
    Sketcher.Constraint("DistanceX", 5, 1, 5, 2, 6.409688),
])
sketch3.setExpression("Constraints[101]", "Params.sketch3_radius")
sketch3.setExpression("Constraints[102]", "Params.sketch3_diameter")
sketch3.setExpression("Constraints[103]", "Params.sketch3_width")
pad3 = body3.newObject("PartDesign::Pad", "Pad002")
pad3.Profile = sketch3
pad3.setExpression("Length", "Params.pad3_length")

doc.recompute()
